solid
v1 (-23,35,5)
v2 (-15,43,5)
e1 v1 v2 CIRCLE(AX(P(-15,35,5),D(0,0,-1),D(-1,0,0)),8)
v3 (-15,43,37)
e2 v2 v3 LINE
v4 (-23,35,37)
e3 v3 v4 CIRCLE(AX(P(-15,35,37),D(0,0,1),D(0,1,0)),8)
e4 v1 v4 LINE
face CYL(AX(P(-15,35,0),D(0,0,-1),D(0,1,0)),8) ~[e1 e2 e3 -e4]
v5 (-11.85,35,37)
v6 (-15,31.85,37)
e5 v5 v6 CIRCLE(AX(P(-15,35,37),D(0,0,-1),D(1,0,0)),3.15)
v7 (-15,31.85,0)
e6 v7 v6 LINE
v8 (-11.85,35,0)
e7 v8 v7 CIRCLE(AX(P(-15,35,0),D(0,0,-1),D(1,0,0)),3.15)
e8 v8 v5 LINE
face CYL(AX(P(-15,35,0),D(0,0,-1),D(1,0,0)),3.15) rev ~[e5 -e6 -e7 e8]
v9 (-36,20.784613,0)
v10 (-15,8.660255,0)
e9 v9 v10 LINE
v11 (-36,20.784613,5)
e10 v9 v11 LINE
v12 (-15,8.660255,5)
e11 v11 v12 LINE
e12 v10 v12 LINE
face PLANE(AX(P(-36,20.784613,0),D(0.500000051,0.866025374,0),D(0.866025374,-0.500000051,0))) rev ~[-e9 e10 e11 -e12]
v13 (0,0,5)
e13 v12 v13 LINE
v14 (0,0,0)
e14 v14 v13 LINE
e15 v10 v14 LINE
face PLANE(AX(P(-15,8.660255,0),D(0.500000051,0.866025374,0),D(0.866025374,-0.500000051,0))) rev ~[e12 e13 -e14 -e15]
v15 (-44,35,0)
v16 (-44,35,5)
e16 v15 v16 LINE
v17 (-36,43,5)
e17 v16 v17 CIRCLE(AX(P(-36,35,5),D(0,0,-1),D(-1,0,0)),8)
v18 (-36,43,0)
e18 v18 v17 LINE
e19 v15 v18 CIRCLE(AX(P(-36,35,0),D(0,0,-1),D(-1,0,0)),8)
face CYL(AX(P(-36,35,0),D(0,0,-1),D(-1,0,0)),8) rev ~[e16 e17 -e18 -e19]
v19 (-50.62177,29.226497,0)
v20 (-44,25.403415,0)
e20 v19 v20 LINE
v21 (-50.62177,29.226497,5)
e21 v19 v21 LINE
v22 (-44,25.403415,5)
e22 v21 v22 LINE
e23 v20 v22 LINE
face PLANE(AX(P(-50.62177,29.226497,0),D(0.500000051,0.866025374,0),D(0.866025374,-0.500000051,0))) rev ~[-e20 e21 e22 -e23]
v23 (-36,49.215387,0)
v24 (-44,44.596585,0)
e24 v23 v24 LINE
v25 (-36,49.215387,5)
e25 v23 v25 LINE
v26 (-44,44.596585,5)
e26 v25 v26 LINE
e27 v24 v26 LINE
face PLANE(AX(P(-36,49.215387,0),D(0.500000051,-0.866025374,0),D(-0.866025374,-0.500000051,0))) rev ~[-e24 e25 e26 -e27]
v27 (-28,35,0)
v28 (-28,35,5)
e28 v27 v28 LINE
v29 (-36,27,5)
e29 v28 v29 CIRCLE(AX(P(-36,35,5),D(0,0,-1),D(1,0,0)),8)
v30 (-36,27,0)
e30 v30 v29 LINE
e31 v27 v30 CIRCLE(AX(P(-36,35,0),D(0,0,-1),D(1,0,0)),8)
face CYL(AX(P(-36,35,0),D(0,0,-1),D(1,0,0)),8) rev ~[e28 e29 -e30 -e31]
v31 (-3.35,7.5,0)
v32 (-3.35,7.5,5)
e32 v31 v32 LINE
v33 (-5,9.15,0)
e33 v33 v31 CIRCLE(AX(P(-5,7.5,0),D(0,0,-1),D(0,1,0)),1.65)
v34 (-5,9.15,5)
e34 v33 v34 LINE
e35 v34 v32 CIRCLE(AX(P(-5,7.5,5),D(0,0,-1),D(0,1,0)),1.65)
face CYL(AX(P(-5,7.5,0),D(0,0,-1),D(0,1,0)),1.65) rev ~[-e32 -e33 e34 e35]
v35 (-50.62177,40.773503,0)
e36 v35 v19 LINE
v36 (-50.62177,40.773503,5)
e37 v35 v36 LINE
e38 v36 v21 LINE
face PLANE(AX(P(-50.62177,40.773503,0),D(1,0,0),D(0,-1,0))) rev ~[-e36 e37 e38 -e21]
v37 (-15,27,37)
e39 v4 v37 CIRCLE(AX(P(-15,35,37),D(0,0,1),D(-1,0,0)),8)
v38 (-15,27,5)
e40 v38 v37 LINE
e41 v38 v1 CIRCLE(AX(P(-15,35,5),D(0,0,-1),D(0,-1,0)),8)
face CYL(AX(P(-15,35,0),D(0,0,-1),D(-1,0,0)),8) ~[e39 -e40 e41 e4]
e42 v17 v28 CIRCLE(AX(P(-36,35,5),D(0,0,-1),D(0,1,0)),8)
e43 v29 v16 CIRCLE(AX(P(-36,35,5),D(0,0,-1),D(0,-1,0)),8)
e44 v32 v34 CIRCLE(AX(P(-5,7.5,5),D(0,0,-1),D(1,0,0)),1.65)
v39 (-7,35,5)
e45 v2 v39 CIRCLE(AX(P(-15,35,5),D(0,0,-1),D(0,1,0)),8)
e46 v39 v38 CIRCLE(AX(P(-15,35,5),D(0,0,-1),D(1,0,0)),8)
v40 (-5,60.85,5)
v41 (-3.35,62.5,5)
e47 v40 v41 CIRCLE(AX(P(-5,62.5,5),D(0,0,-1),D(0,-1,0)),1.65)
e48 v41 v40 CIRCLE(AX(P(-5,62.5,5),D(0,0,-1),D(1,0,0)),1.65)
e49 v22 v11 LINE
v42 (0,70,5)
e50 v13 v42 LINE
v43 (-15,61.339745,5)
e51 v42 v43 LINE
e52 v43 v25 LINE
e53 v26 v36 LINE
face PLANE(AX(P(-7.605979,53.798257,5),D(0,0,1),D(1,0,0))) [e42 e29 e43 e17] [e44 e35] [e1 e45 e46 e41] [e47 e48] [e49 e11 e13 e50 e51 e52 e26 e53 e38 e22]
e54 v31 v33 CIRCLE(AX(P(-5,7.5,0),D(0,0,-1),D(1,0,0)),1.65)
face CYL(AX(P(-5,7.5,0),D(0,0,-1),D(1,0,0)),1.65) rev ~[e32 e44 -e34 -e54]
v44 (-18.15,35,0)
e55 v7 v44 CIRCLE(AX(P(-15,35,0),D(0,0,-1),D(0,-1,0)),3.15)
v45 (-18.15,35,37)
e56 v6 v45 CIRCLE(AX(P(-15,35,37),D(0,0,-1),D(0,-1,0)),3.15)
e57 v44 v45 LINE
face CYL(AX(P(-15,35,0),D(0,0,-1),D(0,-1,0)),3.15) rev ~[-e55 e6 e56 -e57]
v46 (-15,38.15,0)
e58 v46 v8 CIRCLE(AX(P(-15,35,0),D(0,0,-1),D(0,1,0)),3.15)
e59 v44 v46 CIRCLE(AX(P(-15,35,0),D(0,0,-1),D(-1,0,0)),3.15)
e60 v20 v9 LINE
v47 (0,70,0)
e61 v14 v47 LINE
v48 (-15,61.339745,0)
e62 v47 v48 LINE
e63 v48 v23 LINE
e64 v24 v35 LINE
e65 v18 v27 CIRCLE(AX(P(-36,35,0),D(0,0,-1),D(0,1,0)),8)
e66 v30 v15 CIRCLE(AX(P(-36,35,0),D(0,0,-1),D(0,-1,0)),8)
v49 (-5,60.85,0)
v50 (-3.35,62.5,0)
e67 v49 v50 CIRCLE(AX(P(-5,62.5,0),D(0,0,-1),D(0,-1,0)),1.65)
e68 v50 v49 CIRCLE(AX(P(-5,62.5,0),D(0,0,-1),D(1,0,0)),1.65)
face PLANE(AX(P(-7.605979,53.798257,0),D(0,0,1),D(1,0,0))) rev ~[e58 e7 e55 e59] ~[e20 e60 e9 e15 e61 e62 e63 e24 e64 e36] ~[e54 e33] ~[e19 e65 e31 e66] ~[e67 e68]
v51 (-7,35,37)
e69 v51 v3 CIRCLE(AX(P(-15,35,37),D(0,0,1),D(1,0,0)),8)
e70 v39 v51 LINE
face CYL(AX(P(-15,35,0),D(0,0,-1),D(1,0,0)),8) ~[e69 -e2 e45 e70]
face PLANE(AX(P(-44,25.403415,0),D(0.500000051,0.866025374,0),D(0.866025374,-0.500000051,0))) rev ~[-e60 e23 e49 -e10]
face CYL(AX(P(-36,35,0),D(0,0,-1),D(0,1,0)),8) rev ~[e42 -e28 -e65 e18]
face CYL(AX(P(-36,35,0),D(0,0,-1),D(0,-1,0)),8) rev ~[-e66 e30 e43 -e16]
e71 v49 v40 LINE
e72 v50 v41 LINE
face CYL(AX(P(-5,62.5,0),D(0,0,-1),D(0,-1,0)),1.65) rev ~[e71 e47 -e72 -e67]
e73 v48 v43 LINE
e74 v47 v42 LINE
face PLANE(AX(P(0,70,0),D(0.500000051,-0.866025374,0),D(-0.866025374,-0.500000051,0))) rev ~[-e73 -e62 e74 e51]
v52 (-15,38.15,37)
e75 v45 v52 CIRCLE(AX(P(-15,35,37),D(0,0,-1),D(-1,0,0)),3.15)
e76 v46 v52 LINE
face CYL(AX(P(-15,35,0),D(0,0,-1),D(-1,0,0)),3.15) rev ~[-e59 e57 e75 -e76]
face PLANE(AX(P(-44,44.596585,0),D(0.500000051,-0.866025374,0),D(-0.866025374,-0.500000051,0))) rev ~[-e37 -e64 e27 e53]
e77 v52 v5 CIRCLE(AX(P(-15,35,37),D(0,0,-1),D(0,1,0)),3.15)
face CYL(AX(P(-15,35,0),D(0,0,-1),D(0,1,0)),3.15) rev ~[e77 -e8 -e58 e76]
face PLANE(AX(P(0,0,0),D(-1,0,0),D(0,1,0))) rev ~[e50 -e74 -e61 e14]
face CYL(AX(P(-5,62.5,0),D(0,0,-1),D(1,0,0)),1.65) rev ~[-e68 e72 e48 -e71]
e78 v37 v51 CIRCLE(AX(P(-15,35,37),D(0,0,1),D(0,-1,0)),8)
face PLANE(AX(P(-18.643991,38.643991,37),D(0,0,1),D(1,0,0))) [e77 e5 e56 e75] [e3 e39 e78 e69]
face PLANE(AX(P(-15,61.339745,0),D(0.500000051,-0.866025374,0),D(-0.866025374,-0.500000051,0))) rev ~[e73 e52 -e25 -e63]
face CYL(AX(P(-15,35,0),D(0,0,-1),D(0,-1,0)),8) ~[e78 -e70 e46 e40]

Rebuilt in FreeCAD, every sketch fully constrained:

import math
import FreeCAD as App
import Part
import Sketcher
Q = App.Units.Quantity

doc = App.newDocument("Part")
params = doc.addObject("Spreadsheet::Sheet", "Params")
for row, (alias, value) in enumerate([
    ("sketch1_radius", "8 mm"),
    ("sketch1_height", "70 mm"),
    ("sketch1_radius2", "1.65 mm"),
    ("pad1_length", "5 mm"),
    ("sketch2_radius", "8 mm"),
    ("sketch2_radius2", "3.15 mm"),
    ("pad2_length", "37 mm"),
], start=1):
    params.set(f"A{row}", alias)
    params.set(f"B{row}", "=" + value)
    params.setAlias(f"B{row}", alias)

body = doc.addObject("PartDesign::Body", "Body")

# Sketch on XY plane
sketch1 = body.newObject("Sketcher::SketchObject", "Sketch")
sketch1.AttachmentSupport = (doc.getObject("XY_Plane"), [""])
sketch1.MapMode = "FlatFace"
sketch1.addGeometry([
    Part.LineSegment(App.Vector(-36, 49.2, 0), App.Vector(-44, 44.6, 0)),  # 0
    Part.LineSegment(App.Vector(-44, 44.6, 0), App.Vector(-50.6, 40.8, 0)),  # 1
    Part.LineSegment(App.Vector(-50.6, 40.8, 0), App.Vector(-50.6, 29.2, 0)),  # 2
    Part.LineSegment(App.Vector(-50.6, 29.2, 0), App.Vector(-44, 25.4, 0)),  # 3
    Part.LineSegment(App.Vector(-44, 25.4, 0), App.Vector(-36, 20.8, 0)),  # 4
    Part.LineSegment(App.Vector(-36, 20.8, 0), App.Vector(-15, 8.7, 0)),  # 5
    Part.LineSegment(App.Vector(-15, 8.7, 0), App.Vector(0, 0, 0)),  # 6
    Part.LineSegment(App.Vector(0, 0, 0), App.Vector(0, 70, 0)),  # 7
    Part.LineSegment(App.Vector(0, 70, 0), App.Vector(-15, 61.3, 0)),  # 8
    Part.LineSegment(App.Vector(-15, 61.3, 0), App.Vector(-36, 49.2, 0)),  # 9
    Part.ArcOfCircle(Part.Circle(App.Vector(-5, 7.5, 0), App.Vector(0, 0, 1), 1.6), math.radians(0), math.radians(90)),  # 10
    Part.ArcOfCircle(Part.Circle(App.Vector(-5, 7.5, 0), App.Vector(0, 0, 1), 1.6), math.radians(90), math.radians(360)),  # 11
    Part.ArcOfCircle(Part.Circle(App.Vector(-36, 35, 0), App.Vector(0, 0, 1), 8), math.radians(180), math.radians(270)),  # 12
    Part.ArcOfCircle(Part.Circle(App.Vector(-36, 35, 0), App.Vector(0, 0, 1), 8), math.radians(90), math.radians(180)),  # 13
    Part.ArcOfCircle(Part.Circle(App.Vector(-36, 35, 0), App.Vector(0, 0, 1), 8), math.radians(0), math.radians(90)),  # 14
    Part.ArcOfCircle(Part.Circle(App.Vector(-36, 35, 0), App.Vector(0, 0, 1), 8), math.radians(-90), math.radians(0)),  # 15
    Part.ArcOfCircle(Part.Circle(App.Vector(-15, 35, 0), App.Vector(0, 0, 1), 8), math.radians(0), math.radians(90)),  # 16
    Part.ArcOfCircle(Part.Circle(App.Vector(-15, 35, 0), App.Vector(0, 0, 1), 8), math.radians(-90), math.radians(0)),  # 17
    Part.ArcOfCircle(Part.Circle(App.Vector(-15, 35, 0), App.Vector(0, 0, 1), 8), math.radians(180), math.radians(270)),  # 18
    Part.ArcOfCircle(Part.Circle(App.Vector(-15, 35, 0), App.Vector(0, 0, 1), 8), math.radians(90), math.radians(180)),  # 19
    Part.ArcOfCircle(Part.Circle(App.Vector(-5, 62.5, 0), App.Vector(0, 0, 1), 1.6), math.radians(0), math.radians(270)),  # 20
    Part.ArcOfCircle(Part.Circle(App.Vector(-5, 62.5, 0), App.Vector(0, 0, 1), 1.6), math.radians(-90), math.radians(0)),  # 21
], False)
sketch1.addConstraint([
    Sketcher.Constraint("Coincident", 0, 2, 1, 1),
    Sketcher.Constraint("Coincident", 1, 2, 2, 1),
    Sketcher.Constraint("Coincident", 2, 2, 3, 1),
    Sketcher.Constraint("Coincident", 3, 2, 4, 1),
    Sketcher.Constraint("Coincident", 4, 2, 5, 1),
    Sketcher.Constraint("Coincident", 5, 2, 6, 1),
    Sketcher.Constraint("Coincident", 6, 2, 7, 1),
    Sketcher.Constraint("Coincident", 7, 2, 8, 1),
    Sketcher.Constraint("Coincident", 8, 2, 9, 1),
    Sketcher.Constraint("Coincident", 9, 2, 0, 1),
    Sketcher.Constraint("Tangent", 10, 1, 11, 2),
    Sketcher.Constraint("Coincident", 11, 1, 10, 2),
    Sketcher.Constraint("Tangent", 12, 1, 13, 2),
    Sketcher.Constraint("Tangent", 13, 1, 14, 2),
    Sketcher.Constraint("Tangent", 14, 1, 15, 2),
    Sketcher.Constraint("Tangent", 15, 1, 12, 2),
    Sketcher.Constraint("Tangent", 16, 1, 17, 2),
    Sketcher.Constraint("Tangent", 17, 1, 18, 2),
    Sketcher.Constraint("Tangent", 18, 1, 19, 2),
    Sketcher.Constraint("Tangent", 19, 1, 16, 2),
    Sketcher.Constraint("Tangent", 20, 1, 21, 2),
    Sketcher.Constraint("Coincident", 21, 1, 20, 2),
    Sketcher.Constraint("Vertical", 2),
    Sketcher.Constraint("Vertical", 7),
    Sketcher.Constraint("Coincident", 6, 2, -1, 1),
    Sketcher.Constraint("Equal", 12, 13),
    Sketcher.Constraint("Equal", 15, 16),
    Sketcher.Constraint("Equal", 16, 17),
    Sketcher.Constraint("Equal", 11, 20),
    Sketcher.Constraint("Parallel", 0, 1),
    Sketcher.Constraint("Parallel", 3, 4),
    Sketcher.Constraint("Parallel", 4, 5),
    Sketcher.Constraint("Parallel", 5, 6),
    Sketcher.Constraint("Parallel", 1, 8),
    Sketcher.Constraint("Parallel", 8, 9),
    Sketcher.Constraint("Horizontal", 15, 3, 16, 3),
    Sketcher.Constraint("Horizontal", 11, 3, 10, 1),
    Sketcher.Constraint("Horizontal", 19, 3, 12, 1),
    Sketcher.Constraint("Horizontal", 12, 1, 14, 1),
    Sketcher.Constraint("Horizontal", 14, 1, 16, 1),
    Sketcher.Constraint("Horizontal", 16, 1, 18, 1),
    Sketcher.Constraint("Horizontal", 21, 3, 20, 1),
    Sketcher.Constraint("Vertical", 11, 3, 20, 3),
    Sketcher.Constraint("Vertical", 0, 2, 3, 2),
    Sketcher.Constraint("Vertical", 15, 3, 4, 2),
    Sketcher.Constraint("Vertical", 19, 3, 5, 2),
    Sketcher.Constraint("Vertical", 5, 2, 8, 2),
    Sketcher.Constraint("Vertical", 4, 2, 9, 2),
    Sketcher.Constraint("Vertical", 21, 3, 11, 1),
    Sketcher.Constraint("Vertical", 3, 2, 12, 1),
    Sketcher.Constraint("Vertical", 9, 2, 13, 1),
    Sketcher.Constraint("Vertical", 13, 1, 15, 1),
    Sketcher.Constraint("Vertical", 8, 2, 17, 1),
    Sketcher.Constraint("Vertical", 17, 1, 19, 1),
    Sketcher.Constraint("Vertical", 11, 1, 21, 1),
    Sketcher.Constraint("Equal", 1, 3),
    Sketcher.Constraint("Radius", 12, Q("8 mm")),
    Sketcher.Constraint("DistanceY", 7, 1, 7, 2, Q("70 mm")),
    Sketcher.Constraint("Angle", 0, Q("-149.999997 deg")),
    Sketcher.Constraint("Radius", 10, Q("1.65 mm")),
    Sketcher.Constraint("DistanceX", 10, 3, -1, 1, Q("5 mm")),
    Sketcher.Constraint("DistanceX", 12, 3, -1, 1, Q("36 mm")),
    Sketcher.Constraint("DistanceY", -1, 1, 12, 3, Q("35 mm")),
    Sketcher.Constraint("DistanceX", 16, 3, -1, 1, Q("15 mm")),
    Sketcher.Constraint("DistanceY", -1, 1, 10, 3, Q("7.5 mm")),
    Sketcher.Constraint("DistanceY", -1, 1, 20, 3, Q("62.5 mm")),
    Sketcher.Constraint("Distance", 1, Q("7.646162 mm")),
])
sketch1.setExpression("Constraints[56]", "Params.sketch1_radius")
sketch1.setExpression("Constraints[57]", "Params.sketch1_height")
sketch1.setExpression("Constraints[59]", "Params.sketch1_radius2")
pad1 = body.newObject("PartDesign::Pad", "Pad")
pad1.Profile = sketch1
pad1.setExpression("Length", "Params.pad1_length")

# Sketch on XY plane
sketch2 = body.newObject("Sketcher::SketchObject", "Sketch001")
sketch2.AttachmentSupport = (doc.getObject("XY_Plane"), [""])
sketch2.MapMode = "FlatFace"
sketch2.addGeometry([
    Part.ArcOfCircle(Part.Circle(App.Vector(-15, 35, 0), App.Vector(0, 0, 1), 8), math.radians(90), math.radians(180)),  # 0
    Part.ArcOfCircle(Part.Circle(App.Vector(-15, 35, 0), App.Vector(0, 0, 1), 8), math.radians(180), math.radians(270)),  # 1
    Part.ArcOfCircle(Part.Circle(App.Vector(-15, 35, 0), App.Vector(0, 0, 1), 8), math.radians(-90), math.radians(0)),  # 2
    Part.ArcOfCircle(Part.Circle(App.Vector(-15, 35, 0), App.Vector(0, 0, 1), 8), math.radians(0), math.radians(90)),  # 3
    Part.ArcOfCircle(Part.Circle(App.Vector(-15, 35, 0), App.Vector(0, 0, 1), 3.1), math.radians(90), math.radians(180)),  # 4
    Part.ArcOfCircle(Part.Circle(App.Vector(-15, 35, 0), App.Vector(0, 0, 1), 3.1), math.radians(0), math.radians(90)),  # 5
    Part.ArcOfCircle(Part.Circle(App.Vector(-15, 35, 0), App.Vector(0, 0, 1), 3.1), math.radians(-90), math.radians(0)),  # 6
    Part.ArcOfCircle(Part.Circle(App.Vector(-15, 35, 0), App.Vector(0, 0, 1), 3.1), math.radians(180), math.radians(270)),  # 7
], False)
sketch2.addConstraint([
    Sketcher.Constraint("Tangent", 0, 2, 1, 1),
    Sketcher.Constraint("Tangent", 1, 2, 2, 1),
    Sketcher.Constraint("Tangent", 2, 2, 3, 1),
    Sketcher.Constraint("Tangent", 3, 2, 0, 1),
    Sketcher.Constraint("Tangent", 4, 1, 5, 2),
    Sketcher.Constraint("Tangent", 5, 1, 6, 2),
    Sketcher.Constraint("Tangent", 6, 1, 7, 2),
    Sketcher.Constraint("Tangent", 7, 1, 4, 2),
    Sketcher.Constraint("Coincident", 4, 3, 0, 3),
    Sketcher.Constraint("Equal", 0, 1),
    Sketcher.Constraint("Equal", 4, 5),
    Sketcher.Constraint("Horizontal", 7, 3, 0, 2),
    Sketcher.Constraint("Horizontal", 0, 2, 2, 2),
    Sketcher.Constraint("Horizontal", 2, 2, 5, 1),
    Sketcher.Constraint("Horizontal", 5, 1, 7, 1),
    Sketcher.Constraint("Vertical", 7, 3, 1, 2),
    Sketcher.Constraint("Vertical", 1, 2, 3, 2),
    Sketcher.Constraint("Vertical", 3, 2, 4, 1),
    Sketcher.Constraint("Vertical", 4, 1, 6, 1),
    Sketcher.Constraint("Radius", 0, Q("8 mm")),
    Sketcher.Constraint("Radius", 4, Q("3.15 mm")),
    Sketcher.Constraint("DistanceX", 0, 3, -1, 1, Q("15 mm")),
    Sketcher.Constraint("DistanceY", -1, 1, 0, 3, Q("35 mm")),
])
sketch2.setExpression("Constraints[19]", "Params.sketch2_radius")
sketch2.setExpression("Constraints[20]", "Params.sketch2_radius2")
pad2 = body.newObject("PartDesign::Pad", "Pad001")
pad2.Profile = sketch2
pad2.setExpression("Length", "Params.pad2_length")

doc.recompute()
